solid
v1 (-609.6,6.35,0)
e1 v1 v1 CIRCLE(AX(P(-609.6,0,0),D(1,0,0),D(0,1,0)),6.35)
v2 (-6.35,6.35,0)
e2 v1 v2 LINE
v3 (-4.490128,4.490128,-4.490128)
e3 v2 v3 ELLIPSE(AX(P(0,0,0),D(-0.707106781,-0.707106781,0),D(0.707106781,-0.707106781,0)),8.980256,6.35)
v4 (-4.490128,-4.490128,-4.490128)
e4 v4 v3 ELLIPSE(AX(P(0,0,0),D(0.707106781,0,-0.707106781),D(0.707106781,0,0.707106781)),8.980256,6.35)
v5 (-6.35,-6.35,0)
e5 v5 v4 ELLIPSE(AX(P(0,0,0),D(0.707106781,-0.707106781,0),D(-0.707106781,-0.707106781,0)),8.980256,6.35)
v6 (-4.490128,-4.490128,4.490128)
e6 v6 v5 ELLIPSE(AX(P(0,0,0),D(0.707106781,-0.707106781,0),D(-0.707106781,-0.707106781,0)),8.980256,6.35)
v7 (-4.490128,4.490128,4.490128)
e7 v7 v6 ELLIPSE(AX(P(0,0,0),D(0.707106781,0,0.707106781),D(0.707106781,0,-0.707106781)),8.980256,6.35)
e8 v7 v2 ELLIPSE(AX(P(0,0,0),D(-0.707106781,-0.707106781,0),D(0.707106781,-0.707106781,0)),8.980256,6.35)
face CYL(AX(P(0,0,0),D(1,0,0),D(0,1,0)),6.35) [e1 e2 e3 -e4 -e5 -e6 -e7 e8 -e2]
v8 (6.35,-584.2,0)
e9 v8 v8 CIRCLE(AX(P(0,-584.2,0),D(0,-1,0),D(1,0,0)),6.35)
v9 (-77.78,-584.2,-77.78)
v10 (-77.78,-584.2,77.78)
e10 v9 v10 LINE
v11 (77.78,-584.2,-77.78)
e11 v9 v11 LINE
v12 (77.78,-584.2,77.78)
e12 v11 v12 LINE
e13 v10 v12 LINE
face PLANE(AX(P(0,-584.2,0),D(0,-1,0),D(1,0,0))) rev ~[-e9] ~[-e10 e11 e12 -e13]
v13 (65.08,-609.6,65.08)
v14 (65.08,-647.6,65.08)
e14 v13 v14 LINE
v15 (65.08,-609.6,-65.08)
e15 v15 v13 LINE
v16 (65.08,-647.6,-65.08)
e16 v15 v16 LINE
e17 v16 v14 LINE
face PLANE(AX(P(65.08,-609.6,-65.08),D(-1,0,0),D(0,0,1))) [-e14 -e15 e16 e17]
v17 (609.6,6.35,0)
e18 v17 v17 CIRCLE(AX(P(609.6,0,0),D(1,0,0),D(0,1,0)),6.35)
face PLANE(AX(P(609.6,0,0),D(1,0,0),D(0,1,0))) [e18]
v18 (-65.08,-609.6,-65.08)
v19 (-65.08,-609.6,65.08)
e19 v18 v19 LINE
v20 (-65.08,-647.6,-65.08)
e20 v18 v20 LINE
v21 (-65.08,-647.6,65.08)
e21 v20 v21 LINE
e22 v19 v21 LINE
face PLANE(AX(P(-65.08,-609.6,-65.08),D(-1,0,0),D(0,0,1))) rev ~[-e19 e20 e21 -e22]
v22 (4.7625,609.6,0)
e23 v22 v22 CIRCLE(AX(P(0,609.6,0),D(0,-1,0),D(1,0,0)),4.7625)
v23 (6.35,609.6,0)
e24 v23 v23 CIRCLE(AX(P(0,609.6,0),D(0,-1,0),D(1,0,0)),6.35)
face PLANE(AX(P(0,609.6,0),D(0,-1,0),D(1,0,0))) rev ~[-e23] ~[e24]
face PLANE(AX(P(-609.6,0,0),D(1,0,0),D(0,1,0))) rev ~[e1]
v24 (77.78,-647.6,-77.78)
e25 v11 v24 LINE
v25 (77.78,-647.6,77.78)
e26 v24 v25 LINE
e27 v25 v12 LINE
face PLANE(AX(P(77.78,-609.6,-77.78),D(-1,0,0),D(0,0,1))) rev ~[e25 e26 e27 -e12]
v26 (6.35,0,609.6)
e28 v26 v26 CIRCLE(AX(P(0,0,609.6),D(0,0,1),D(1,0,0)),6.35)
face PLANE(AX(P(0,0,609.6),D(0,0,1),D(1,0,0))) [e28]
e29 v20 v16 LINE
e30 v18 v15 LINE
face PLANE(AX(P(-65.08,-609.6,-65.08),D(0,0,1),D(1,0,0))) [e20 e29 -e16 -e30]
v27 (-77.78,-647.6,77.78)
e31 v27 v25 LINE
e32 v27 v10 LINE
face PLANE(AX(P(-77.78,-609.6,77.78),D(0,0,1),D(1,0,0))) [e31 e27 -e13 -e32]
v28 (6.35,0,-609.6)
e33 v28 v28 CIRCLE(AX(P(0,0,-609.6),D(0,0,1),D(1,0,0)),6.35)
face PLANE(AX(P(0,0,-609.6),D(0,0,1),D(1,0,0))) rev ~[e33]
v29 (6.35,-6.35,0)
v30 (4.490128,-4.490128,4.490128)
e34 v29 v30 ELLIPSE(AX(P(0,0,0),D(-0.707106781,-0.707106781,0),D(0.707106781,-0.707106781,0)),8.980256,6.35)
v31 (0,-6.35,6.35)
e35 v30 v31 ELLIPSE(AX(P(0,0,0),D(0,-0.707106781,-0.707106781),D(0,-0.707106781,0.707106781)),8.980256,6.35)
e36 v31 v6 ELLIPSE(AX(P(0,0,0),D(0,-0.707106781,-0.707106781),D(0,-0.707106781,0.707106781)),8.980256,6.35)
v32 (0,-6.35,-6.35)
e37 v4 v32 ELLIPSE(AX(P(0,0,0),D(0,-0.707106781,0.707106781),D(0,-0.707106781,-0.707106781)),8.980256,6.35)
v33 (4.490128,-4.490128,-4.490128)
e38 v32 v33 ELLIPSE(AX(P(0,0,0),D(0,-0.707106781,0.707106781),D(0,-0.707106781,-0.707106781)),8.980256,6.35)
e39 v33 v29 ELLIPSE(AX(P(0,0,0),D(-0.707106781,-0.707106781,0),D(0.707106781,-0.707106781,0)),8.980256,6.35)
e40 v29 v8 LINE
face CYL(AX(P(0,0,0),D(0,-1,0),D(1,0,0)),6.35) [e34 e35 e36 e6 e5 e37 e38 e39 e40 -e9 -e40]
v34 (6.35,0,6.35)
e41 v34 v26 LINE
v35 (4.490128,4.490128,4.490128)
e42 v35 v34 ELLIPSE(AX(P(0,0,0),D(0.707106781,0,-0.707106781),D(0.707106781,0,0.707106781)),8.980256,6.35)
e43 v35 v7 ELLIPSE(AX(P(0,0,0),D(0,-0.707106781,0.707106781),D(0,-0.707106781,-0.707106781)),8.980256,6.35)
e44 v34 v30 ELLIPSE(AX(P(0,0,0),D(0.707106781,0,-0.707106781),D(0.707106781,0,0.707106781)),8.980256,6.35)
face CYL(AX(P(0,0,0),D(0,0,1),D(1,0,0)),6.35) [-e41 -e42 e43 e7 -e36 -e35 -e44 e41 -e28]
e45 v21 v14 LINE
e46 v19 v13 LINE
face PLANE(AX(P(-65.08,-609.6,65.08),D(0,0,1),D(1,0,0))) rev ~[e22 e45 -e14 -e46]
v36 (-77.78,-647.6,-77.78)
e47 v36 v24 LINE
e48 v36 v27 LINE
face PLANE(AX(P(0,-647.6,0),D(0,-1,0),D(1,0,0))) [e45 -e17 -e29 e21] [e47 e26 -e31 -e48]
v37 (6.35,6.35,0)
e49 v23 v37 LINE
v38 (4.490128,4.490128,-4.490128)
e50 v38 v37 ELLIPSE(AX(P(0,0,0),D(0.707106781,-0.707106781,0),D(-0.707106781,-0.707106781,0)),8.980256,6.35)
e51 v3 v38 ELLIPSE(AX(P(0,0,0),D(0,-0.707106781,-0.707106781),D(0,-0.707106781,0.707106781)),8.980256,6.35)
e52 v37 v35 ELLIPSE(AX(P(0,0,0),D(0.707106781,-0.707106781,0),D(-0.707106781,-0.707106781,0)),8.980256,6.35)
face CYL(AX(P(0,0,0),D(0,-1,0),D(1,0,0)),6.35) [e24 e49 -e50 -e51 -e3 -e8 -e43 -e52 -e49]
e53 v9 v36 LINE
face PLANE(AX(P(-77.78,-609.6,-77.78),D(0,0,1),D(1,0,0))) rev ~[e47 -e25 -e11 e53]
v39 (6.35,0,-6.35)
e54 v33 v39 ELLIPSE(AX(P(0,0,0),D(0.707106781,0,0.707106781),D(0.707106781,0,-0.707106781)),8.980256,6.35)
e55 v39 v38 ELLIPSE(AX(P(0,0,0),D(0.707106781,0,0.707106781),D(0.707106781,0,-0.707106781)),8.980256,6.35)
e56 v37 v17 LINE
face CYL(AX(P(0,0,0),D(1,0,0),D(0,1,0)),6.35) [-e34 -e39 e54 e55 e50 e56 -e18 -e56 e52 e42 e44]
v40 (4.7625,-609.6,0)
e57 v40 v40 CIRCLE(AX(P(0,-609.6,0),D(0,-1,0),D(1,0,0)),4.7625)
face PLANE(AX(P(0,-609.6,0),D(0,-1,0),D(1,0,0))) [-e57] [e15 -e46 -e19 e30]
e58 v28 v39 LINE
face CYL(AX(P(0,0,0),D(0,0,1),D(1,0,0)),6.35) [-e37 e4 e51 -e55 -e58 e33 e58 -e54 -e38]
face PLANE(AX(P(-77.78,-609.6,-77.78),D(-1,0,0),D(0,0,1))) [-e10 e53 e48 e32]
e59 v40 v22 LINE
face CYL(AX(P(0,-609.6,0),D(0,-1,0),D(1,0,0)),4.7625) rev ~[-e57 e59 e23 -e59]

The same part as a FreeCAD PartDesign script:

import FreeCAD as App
import Part
import Sketcher

V = App.Vector
Q = App.Units.Quantity


def add_polygon(sketch, points):
    """Adds a closed chain of lines whose ends are joined by coincident constraints."""
    first, n = sketch.GeometryCount, len(points)
    for a, b in zip(points, points[1:] + points[:1]):
        sketch.addGeometry(Part.LineSegment(App.Vector(*a, 0), App.Vector(*b, 0)), False)
    for i in range(n):
        sketch.addConstraint(Sketcher.Constraint("Coincident", first + i, 2, first + (i + 1) % n, 1))

doc = App.newDocument("Part")
body = doc.addObject("PartDesign::Body", "Body")

# Sketch on XZ plane
sketch1 = doc.addObject("Sketcher::SketchObject", "Sketch")
body.addObject(sketch1)
sketch1.AttachmentSupport = (doc.XZ_Plane, [""])
sketch1.MapMode = "FlatFace"
sketch1.addGeometry(Part.Circle(V(0, 0, 0), V(0, 0, 1), 6), False)
sketch1.addConstraint([
    Sketcher.Constraint("Coincident", 0, 3, -1, 1),
    Sketcher.Constraint("Diameter", 0, Q("0.5 in")),
])
pad1 = doc.addObject("PartDesign::Pad", "Pad")
body.addObject(pad1)
pad1.Profile = sketch1
pad1.Length = Q("48 in")
pad1.Midplane = True

# Sketch on YZ plane
sketch2 = doc.addObject("Sketcher::SketchObject", "Sketch001")
body.addObject(sketch2)
sketch2.AttachmentSupport = (doc.YZ_Plane, [""])
sketch2.MapMode = "FlatFace"
sketch2.addGeometry(Part.Circle(V(0, 0, 0), V(0, 0, 1), 6), False)
sketch2.addConstraint([
    Sketcher.Constraint("Coincident", 0, 3, -1, 1),
    Sketcher.Constraint("Diameter", 0, Q("0.5 in")),
])
pad2 = doc.addObject("PartDesign::Pad", "Pad001")
body.addObject(pad2)
pad2.Profile = sketch2
pad2.Length = Q("48 in")
pad2.Midplane = True

# Sketch on XY plane
sketch3 = doc.addObject("Sketcher::SketchObject", "Sketch002")
body.addObject(sketch3)
sketch3.AttachmentSupport = (doc.XY_Plane, [""])
sketch3.MapMode = "FlatFace"
sketch3.addGeometry(Part.Circle(V(0, 0, 0), V(0, 0, 1), 6), False)
sketch3.addConstraint([
    Sketcher.Constraint("Coincident", 0, 3, -1, 1),
    Sketcher.Constraint("Diameter", 0, Q("0.5 in")),
])
pad3 = doc.addObject("PartDesign::Pad", "Pad002")
body.addObject(pad3)
pad3.Profile = sketch3
pad3.Length = Q("48 in")
pad3.Midplane = True

# Sketch on XZ plane
sketch4 = doc.addObject("Sketcher::SketchObject", "Sketch003")
body.addObject(sketch4)
sketch4.AttachmentSupport = (doc.XZ_Plane, [""])
sketch4.MapMode = "FlatFace"
sketch4.AttachmentOffset = App.Placement(V(0, 0, 24 * 25.4), App.Rotation())
add_polygon(sketch4, [(-78, 78), (-78, -78), (78, -78), (78, 78)])  # lines 0-3
sketch4.addConstraint([
    Sketcher.Constraint("Vertical", 0),
    Sketcher.Constraint("Horizontal", 1),
    Sketcher.Constraint("Vertical", 2),
    Sketcher.Constraint("Horizontal", 3),
    Sketcher.Constraint("Symmetric", 0, 2, 2, 2, -1, 1),
    Sketcher.Constraint("Equal", 3, 0),
    Sketcher.Constraint("DistanceX", 1, 1, 1, 2, Q("155.56 mm")),
])
pad4 = doc.addObject("PartDesign::Pad", "Pad003")
body.addObject(pad4)
pad4.Profile = sketch4
pad4.Length = Q("1 in")
pad4.Reversed = True

# Sketch on XZ plane
sketch5 = doc.addObject("Sketcher::SketchObject", "Sketch004")
body.addObject(sketch5)
sketch5.AttachmentSupport = (doc.XZ_Plane, [""])
sketch5.MapMode = "FlatFace"
sketch5.AttachmentOffset = App.Placement(V(0, 0, 24 * 25.4), App.Rotation())
add_polygon(sketch5, [(-78, 78), (-78, -78), (78, -78), (78, 78)])  # lines 0-3
add_polygon(sketch5, [(65, -65), (-65, -65), (-65, 65), (65, 65)])  # lines 4-7
sketch5.addConstraint([
    Sketcher.Constraint("Vertical", 0),
    Sketcher.Constraint("Horizontal", 1),
    Sketcher.Constraint("Vertical", 2),
    Sketcher.Constraint("Horizontal", 3),
    Sketcher.Constraint("Horizontal", 4),
    Sketcher.Constraint("Vertical", 5),
    Sketcher.Constraint("Horizontal", 6),
    Sketcher.Constraint("Vertical", 7),
    Sketcher.Constraint("Symmetric", 0, 2, 2, 2, -1, 1),
    Sketcher.Constraint("Symmetric", 4, 2, 6, 2, -1, 1),
    Sketcher.Constraint("Equal", 3, 0),
    Sketcher.Constraint("Equal", 6, 5),
    Sketcher.Constraint("DistanceX", 0, 2, 4, 2, Q("0.5 in")),
    Sketcher.Constraint("DistanceX", 1, 1, 1, 2, Q("155.56 mm")),
])
pad5 = doc.addObject("PartDesign::Pad", "Pad004")
body.addObject(pad5)
pad5.Profile = sketch5
pad5.Length = 38

# Sketch on XZ plane
sketch6 = doc.addObject("Sketcher::SketchObject", "Sketch005")
body.addObject(sketch6)
sketch6.AttachmentSupport = (doc.XZ_Plane, [""])
sketch6.MapMode = "FlatFace"
sketch6.AttachmentOffset = App.Placement(V(0, 0, 24 * 25.4), App.Rotation())
sketch6.addGeometry(Part.Circle(V(0, 0, 0), V(0, 0, 1), 4.8), False)
sketch6.addConstraint([
    Sketcher.Constraint("Coincident", 0, 3, -1, 1),
    Sketcher.Constraint("Diameter", 0, Q("0.375 in")),
])
pocket1 = doc.addObject("PartDesign::Pocket", "Pocket")
body.addObject(pocket1)
pocket1.Profile = sketch6
pocket1.Length = Q("48 in")

doc.recompute()
